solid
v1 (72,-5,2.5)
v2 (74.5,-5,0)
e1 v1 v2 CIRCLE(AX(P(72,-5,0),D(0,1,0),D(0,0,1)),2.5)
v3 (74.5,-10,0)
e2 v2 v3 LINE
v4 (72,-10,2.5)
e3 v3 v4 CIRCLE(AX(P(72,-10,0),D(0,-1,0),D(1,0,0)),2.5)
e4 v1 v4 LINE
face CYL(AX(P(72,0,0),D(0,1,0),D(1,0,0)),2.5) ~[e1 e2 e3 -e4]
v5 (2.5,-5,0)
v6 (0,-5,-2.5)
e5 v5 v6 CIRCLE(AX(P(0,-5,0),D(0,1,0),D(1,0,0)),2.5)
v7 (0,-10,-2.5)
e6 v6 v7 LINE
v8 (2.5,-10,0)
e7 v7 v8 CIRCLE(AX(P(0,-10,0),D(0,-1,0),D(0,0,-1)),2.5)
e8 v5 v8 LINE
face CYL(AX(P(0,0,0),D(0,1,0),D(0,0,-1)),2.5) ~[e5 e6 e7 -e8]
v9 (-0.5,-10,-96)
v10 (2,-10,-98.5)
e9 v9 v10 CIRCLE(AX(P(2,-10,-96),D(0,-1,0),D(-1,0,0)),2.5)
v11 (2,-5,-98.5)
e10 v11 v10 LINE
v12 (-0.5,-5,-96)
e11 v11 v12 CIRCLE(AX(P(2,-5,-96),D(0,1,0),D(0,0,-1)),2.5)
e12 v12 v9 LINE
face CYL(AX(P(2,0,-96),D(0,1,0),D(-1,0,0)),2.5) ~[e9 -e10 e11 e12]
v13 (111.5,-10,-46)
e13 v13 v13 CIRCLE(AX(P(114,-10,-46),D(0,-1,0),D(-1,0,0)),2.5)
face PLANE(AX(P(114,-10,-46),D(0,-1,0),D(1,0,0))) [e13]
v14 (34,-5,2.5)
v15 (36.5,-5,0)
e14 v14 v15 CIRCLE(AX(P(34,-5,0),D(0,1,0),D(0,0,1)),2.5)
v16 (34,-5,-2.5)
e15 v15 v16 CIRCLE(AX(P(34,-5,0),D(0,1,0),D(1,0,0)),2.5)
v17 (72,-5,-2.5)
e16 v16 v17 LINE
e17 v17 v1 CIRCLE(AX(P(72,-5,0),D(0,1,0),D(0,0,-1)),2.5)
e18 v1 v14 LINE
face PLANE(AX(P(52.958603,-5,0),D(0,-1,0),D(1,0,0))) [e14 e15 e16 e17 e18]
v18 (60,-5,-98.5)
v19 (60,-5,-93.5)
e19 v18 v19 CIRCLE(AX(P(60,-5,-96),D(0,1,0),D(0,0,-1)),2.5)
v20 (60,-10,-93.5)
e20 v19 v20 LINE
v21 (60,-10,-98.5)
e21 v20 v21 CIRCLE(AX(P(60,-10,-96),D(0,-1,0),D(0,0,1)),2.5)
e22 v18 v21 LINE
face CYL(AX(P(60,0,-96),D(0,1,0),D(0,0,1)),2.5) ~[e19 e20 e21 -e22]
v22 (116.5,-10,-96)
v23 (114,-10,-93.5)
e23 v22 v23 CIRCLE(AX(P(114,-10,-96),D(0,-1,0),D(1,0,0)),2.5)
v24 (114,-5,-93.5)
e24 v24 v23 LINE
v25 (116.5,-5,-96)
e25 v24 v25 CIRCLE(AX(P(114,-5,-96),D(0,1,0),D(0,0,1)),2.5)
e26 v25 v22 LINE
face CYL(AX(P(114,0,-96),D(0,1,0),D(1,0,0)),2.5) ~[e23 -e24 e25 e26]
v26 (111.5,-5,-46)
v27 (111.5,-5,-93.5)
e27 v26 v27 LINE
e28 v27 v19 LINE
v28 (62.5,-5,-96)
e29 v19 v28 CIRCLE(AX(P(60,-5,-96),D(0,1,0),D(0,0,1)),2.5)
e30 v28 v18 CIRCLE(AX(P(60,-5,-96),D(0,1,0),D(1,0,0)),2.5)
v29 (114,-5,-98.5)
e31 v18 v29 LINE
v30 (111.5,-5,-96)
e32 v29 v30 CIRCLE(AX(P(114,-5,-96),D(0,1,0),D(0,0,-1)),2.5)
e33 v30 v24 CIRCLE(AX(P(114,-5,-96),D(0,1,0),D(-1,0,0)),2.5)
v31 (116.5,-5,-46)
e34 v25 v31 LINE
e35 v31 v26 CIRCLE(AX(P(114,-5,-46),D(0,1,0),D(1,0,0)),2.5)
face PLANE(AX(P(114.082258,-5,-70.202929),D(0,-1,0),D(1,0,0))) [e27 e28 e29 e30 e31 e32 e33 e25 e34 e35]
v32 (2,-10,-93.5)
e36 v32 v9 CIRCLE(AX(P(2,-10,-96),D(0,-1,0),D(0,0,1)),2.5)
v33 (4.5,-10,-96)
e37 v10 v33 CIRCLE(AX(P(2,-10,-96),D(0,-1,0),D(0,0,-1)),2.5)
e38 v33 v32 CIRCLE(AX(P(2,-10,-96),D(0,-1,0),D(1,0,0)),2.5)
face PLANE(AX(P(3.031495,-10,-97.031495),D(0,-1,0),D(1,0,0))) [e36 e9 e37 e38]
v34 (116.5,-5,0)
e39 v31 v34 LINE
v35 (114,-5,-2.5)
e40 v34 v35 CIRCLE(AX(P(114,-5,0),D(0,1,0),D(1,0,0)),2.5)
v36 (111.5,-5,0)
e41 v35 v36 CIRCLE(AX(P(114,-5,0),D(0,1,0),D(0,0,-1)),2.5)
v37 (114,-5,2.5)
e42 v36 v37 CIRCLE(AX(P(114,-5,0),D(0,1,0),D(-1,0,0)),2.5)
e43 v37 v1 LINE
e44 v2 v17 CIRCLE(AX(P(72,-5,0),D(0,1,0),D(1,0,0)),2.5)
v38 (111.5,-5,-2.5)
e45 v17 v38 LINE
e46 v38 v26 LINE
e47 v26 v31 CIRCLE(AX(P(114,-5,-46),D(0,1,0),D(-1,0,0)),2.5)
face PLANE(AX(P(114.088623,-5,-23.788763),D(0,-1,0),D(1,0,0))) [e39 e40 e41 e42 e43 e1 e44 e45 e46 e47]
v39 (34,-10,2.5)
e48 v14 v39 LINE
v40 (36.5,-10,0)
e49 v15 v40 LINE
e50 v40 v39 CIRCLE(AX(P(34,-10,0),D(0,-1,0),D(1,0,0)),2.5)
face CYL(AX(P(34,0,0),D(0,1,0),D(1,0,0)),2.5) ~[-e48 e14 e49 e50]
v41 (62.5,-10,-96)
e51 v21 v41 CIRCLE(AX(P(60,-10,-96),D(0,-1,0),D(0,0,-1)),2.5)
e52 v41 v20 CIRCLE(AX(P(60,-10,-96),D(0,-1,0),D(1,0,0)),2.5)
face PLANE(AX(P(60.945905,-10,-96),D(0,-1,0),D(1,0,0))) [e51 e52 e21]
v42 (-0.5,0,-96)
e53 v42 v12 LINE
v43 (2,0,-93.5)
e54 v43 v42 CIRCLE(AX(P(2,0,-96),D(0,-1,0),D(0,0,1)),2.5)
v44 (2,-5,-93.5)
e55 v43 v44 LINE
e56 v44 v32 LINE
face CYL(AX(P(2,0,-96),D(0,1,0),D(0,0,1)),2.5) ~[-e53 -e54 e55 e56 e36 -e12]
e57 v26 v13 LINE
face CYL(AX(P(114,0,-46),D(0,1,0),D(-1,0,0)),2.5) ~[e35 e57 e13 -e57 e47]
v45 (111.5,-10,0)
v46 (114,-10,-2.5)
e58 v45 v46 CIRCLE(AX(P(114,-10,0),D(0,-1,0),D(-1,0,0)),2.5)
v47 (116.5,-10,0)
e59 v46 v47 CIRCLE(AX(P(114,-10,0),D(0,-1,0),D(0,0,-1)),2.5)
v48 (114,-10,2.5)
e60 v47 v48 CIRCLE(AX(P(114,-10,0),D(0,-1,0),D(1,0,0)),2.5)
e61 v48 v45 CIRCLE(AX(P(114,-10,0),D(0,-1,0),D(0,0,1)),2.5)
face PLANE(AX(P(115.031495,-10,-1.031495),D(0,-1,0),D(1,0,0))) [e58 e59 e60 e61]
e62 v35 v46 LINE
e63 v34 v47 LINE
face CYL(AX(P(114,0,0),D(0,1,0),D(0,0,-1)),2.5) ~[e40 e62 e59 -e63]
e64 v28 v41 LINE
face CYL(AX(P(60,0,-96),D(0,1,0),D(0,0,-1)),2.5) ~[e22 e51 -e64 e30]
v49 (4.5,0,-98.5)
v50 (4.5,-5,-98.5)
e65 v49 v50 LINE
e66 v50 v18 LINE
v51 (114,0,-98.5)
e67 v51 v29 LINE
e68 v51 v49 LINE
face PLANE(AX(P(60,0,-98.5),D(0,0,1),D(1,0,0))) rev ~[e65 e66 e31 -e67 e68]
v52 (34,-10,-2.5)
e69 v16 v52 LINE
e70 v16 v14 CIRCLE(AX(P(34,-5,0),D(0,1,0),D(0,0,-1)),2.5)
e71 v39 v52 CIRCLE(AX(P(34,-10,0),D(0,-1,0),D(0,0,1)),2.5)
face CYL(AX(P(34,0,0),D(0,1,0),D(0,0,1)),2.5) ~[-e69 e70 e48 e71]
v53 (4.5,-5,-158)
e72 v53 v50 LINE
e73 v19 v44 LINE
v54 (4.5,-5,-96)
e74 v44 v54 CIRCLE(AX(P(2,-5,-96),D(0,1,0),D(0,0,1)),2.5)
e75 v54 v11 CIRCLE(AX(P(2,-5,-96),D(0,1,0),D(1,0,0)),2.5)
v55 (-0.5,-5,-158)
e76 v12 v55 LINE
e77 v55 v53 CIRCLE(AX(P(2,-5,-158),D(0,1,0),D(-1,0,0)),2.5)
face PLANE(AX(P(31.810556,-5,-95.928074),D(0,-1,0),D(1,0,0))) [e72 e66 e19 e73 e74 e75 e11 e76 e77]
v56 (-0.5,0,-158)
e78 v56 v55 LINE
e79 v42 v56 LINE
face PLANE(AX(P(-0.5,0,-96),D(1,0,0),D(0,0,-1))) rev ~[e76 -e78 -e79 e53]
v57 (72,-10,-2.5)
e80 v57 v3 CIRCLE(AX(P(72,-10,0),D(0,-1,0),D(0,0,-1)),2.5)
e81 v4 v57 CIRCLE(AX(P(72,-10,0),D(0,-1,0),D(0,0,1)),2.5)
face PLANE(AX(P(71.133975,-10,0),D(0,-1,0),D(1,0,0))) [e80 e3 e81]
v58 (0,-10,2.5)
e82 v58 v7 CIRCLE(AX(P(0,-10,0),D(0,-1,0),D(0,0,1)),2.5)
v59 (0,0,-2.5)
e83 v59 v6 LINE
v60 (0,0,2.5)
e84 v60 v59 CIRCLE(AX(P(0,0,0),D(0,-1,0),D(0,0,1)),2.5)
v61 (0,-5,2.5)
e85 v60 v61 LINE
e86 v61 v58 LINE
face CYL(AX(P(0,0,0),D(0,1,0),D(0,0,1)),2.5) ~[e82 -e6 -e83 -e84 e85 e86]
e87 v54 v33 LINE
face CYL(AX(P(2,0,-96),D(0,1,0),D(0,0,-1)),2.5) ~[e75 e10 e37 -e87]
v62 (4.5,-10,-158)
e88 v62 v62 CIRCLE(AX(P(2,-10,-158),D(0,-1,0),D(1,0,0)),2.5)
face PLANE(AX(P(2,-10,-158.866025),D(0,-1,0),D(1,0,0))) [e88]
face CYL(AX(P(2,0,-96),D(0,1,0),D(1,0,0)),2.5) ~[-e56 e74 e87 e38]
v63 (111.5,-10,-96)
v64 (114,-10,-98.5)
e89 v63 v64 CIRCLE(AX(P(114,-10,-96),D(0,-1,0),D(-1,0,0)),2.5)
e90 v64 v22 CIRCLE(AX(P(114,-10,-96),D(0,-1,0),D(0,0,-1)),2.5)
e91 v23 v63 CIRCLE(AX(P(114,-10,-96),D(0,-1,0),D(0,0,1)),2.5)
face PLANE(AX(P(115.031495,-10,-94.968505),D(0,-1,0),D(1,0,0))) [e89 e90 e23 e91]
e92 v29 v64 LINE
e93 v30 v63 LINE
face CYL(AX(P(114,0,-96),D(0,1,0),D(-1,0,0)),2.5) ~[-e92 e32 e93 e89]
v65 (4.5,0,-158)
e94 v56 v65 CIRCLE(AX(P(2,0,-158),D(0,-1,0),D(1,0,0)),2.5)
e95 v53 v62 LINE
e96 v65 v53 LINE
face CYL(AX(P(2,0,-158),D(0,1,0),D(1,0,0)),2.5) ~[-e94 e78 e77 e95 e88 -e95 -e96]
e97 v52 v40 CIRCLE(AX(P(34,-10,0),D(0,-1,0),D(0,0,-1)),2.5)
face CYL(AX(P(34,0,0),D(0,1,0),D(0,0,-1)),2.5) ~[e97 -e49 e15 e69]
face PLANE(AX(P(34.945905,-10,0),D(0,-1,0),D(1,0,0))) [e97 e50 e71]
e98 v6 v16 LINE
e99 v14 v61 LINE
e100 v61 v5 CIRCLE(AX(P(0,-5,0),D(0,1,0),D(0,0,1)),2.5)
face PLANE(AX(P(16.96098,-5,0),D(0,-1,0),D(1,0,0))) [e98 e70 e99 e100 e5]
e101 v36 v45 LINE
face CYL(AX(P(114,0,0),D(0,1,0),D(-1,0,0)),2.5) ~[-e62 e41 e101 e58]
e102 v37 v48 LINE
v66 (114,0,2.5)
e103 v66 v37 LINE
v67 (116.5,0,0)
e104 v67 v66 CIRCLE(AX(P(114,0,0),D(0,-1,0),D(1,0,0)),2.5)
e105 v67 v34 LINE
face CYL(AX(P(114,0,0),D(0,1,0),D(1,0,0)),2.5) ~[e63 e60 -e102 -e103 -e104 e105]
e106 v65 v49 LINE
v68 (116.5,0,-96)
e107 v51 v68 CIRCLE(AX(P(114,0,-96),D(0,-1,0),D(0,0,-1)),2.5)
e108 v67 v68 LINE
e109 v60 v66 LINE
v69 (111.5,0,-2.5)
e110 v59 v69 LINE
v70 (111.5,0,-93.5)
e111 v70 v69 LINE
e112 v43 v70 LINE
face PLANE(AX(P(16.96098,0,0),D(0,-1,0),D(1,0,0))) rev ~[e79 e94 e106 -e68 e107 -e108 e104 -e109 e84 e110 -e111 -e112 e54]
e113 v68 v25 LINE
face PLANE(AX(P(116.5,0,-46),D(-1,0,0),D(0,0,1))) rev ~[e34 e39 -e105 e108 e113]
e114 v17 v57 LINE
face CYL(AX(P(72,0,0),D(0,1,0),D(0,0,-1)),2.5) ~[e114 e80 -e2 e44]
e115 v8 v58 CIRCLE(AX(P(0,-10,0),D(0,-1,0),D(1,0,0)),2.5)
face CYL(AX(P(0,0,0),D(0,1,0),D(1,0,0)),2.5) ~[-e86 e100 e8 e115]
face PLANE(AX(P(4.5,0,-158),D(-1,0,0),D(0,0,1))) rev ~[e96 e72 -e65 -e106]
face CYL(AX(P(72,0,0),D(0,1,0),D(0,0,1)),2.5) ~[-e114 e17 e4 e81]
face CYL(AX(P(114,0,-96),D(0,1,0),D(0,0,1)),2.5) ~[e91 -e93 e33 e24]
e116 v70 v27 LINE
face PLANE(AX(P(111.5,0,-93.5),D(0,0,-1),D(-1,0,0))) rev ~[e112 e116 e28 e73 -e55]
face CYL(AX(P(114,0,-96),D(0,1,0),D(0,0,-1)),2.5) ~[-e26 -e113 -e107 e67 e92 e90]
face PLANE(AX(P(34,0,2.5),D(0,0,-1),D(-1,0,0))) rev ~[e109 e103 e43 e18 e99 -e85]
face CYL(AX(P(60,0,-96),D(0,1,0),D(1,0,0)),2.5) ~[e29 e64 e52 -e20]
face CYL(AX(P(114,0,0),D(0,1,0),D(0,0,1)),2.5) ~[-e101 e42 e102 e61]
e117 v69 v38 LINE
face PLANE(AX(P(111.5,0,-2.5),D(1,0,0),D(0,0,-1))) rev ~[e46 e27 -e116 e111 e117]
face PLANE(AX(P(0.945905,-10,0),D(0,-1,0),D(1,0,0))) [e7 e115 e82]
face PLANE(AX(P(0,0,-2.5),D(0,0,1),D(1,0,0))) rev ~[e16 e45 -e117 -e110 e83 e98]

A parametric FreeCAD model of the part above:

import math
import FreeCAD as App
import Part
import Sketcher
from FreeCAD import Vector

doc = App.newDocument("Part")
body = doc.addObject("PartDesign::Body", "Body")

# Sketch on XZ plane
sketch1 = doc.addObject("Sketcher::SketchObject", "Sketch")
body.addObject(sketch1)
sketch1.AttachmentSupport = (doc.XZ_Plane, [""])
sketch1.MapMode = "FlatFace"
sketch1.addGeometry(Part.ArcOfCircle(Part.Circle(Vector(0, 0, 0), Vector(0, 0, 1), 2.5), math.radians(-90), math.radians(0)), False)
sketch1.addGeometry(Part.ArcOfCircle(Part.Circle(Vector(0, 0, 0), Vector(0, 0, 1), 2.5), math.radians(0), math.radians(90)), False)
sketch1.addGeometry(Part.ArcOfCircle(Part.Circle(Vector(0, 0, 0), Vector(0, 0, 1), 2.5), math.radians(90), math.radians(270)), False)
sketch1.addConstraint(Sketcher.Constraint("Tangent", 0, 2, 1, 1))
sketch1.addConstraint(Sketcher.Constraint("Tangent", 1, 2, 2, 1))
sketch1.addConstraint(Sketcher.Constraint("Tangent", 2, 2, 0, 1))
sketch1.addConstraint(Sketcher.Constraint("Coincident", 0, 3, -1, 1))
sketch1.addConstraint(Sketcher.Constraint("PointOnObject", 0, 2, -1))
sketch1.addConstraint(Sketcher.Constraint("PointOnObject", 1, 2, -2))
sketch1.addConstraint(Sketcher.Constraint("PointOnObject", 2, 2, -2))
sketch1.addConstraint(Sketcher.Constraint("Radius", 0, 2.5))
pad1 = doc.addObject("PartDesign::Pad", "Pad")
body.addObject(pad1)
pad1.Profile = sketch1
pad1.Length = 10
body2 = doc.addObject("PartDesign::Body", "Body001")

# Sketch on XZ plane
sketch2 = doc.addObject("Sketcher::SketchObject", "Sketch001")
body2.addObject(sketch2)
sketch2.AttachmentSupport = (doc.getObject("XZ_Plane001"), [""])
sketch2.MapMode = "FlatFace"
sketch2.addGeometry(Part.ArcOfCircle(Part.Circle(Vector(34, 0, 0), Vector(0, 0, 1), 2.5), math.radians(0), math.radians(90)), False)
sketch2.addGeometry(Part.ArcOfCircle(Part.Circle(Vector(34, 0, 0), Vector(0, 0, 1), 2.5), math.radians(90), math.radians(270)), False)
sketch2.addGeometry(Part.ArcOfCircle(Part.Circle(Vector(34, 0, 0), Vector(0, 0, 1), 2.5), math.radians(-90), math.radians(0)), False)
sketch2.addConstraint(Sketcher.Constraint("Tangent", 0, 2, 1, 1))
sketch2.addConstraint(Sketcher.Constraint("Tangent", 1, 2, 2, 1))
sketch2.addConstraint(Sketcher.Constraint("Tangent", 2, 2, 0, 1))
sketch2.addConstraint(Sketcher.Constraint("Symmetric", 0, 2, 1, 2, -1))
sketch2.addConstraint(Sketcher.Constraint("PointOnObject", 2, 2, -1))
sketch2.addConstraint(Sketcher.Constraint("Vertical", 2, 3, 0, 2))
sketch2.addConstraint(Sketcher.Constraint("Radius", 0, 2.5))
sketch2.addConstraint(Sketcher.Constraint("DistanceX", -1, 1, 0, 3, 34.0))
pad2 = doc.addObject("PartDesign::Pad", "Pad001")
body2.addObject(pad2)
pad2.Profile = sketch2
pad2.Length = 10
body3 = doc.addObject("PartDesign::Body", "Body002")

# Sketch on XZ plane
sketch3 = doc.addObject("Sketcher::SketchObject", "Sketch002")
body3.addObject(sketch3)
sketch3.AttachmentSupport = (doc.getObject("XZ_Plane002"), [""])
sketch3.MapMode = "FlatFace"
sketch3.addGeometry(Part.ArcOfCircle(Part.Circle(Vector(114, 0, 0), Vector(0, 0, 1), 2.5), math.radians(-90), math.radians(0)), False)
sketch3.addGeometry(Part.ArcOfCircle(Part.Circle(Vector(114, 0, 0), Vector(0, 0, 1), 2.5), math.radians(0), math.radians(90)), False)
sketch3.addGeometry(Part.ArcOfCircle(Part.Circle(Vector(114, 0, 0), Vector(0, 0, 1), 2.5), math.radians(90), math.radians(180)), False)
sketch3.addGeometry(Part.ArcOfCircle(Part.Circle(Vector(114, 0, 0), Vector(0, 0, 1), 2.5), math.radians(180), math.radians(270)), False)
sketch3.addConstraint(Sketcher.Constraint("Tangent", 0, 2, 1, 1))
sketch3.addConstraint(Sketcher.Constraint("Tangent", 1, 2, 2, 1))
sketch3.addConstraint(Sketcher.Constraint("Tangent", 2, 2, 3, 1))
sketch3.addConstraint(Sketcher.Constraint("Tangent", 3, 2, 0, 1))
sketch3.addConstraint(Sketcher.Constraint("Equal", 0, 1))
sketch3.addConstraint(Sketcher.Constraint("Symmetric", 1, 2, 3, 2, -1))
sketch3.addConstraint(Sketcher.Constraint("PointOnObject", 0, 2, -1))
sketch3.addConstraint(Sketcher.Constraint("PointOnObject", 2, 2, -1))
sketch3.addConstraint(Sketcher.Constraint("Vertical", 3, 3, 1, 2))
sketch3.addConstraint(Sketcher.Constraint("Radius", 0, 2.5))
sketch3.addConstraint(Sketcher.Constraint("DistanceX", -1, 1, 0, 3, 114.0))
pad3 = doc.addObject("PartDesign::Pad", "Pad002")
body3.addObject(pad3)
pad3.Profile = sketch3
pad3.Length = 10
body4 = doc.addObject("PartDesign::Body", "Body003")

# Sketch on XZ plane
sketch4 = doc.addObject("Sketcher::SketchObject", "Sketch003")
body4.addObject(sketch4)
sketch4.AttachmentSupport = (doc.getObject("XZ_Plane003"), [""])
sketch4.MapMode = "FlatFace"
sketch4.addGeometry(Part.ArcOfCircle(Part.Circle(Vector(72, 0, 0), Vector(0, 0, 1), 2.5), math.radians(90), math.radians(270)), False)
sketch4.addGeometry(Part.ArcOfCircle(Part.Circle(Vector(72, 0, 0), Vector(0, 0, 1), 2.5), math.radians(-90), math.radians(0)), False)
sketch4.addGeometry(Part.ArcOfCircle(Part.Circle(Vector(72, 0, 0), Vector(0, 0, 1), 2.5), math.radians(0), math.radians(90)), False)
sketch4.addConstraint(Sketcher.Constraint("Tangent", 0, 2, 1, 1))
sketch4.addConstraint(Sketcher.Constraint("Tangent", 1, 2, 2, 1))
sketch4.addConstraint(Sketcher.Constraint("Tangent", 2, 2, 0, 1))
sketch4.addConstraint(Sketcher.Constraint("Symmetric", 0, 2, 2, 2, -1))
sketch4.addConstraint(Sketcher.Constraint("PointOnObject", 1, 2, -1))
sketch4.addConstraint(Sketcher.Constraint("Vertical", 2, 3, 0, 2))
sketch4.addConstraint(Sketcher.Constraint("Radius", 0, 2.5))
sketch4.addConstraint(Sketcher.Constraint("DistanceX", -1, 1, 0, 3, 72.0))
pad4 = doc.addObject("PartDesign::Pad", "Pad003")
body4.addObject(pad4)
pad4.Profile = sketch4
pad4.Length = 10
body5 = doc.addObject("PartDesign::Body", "Body004")

# Sketch on XZ plane
sketch5 = doc.addObject("Sketcher::SketchObject", "Sketch004")
body5.addObject(sketch5)
sketch5.AttachmentSupport = (doc.getObject("XZ_Plane004"), [""])
sketch5.MapMode = "FlatFace"
sketch5.addGeometry(Part.Circle(Vector(114, -46, 0), Vector(0, 0, 1), 2.5), False)
sketch5.addConstraint(Sketcher.Constraint("Diameter", 0, 5.0))
sketch5.addConstraint(Sketcher.Constraint("DistanceX", -1, 1, 0, 3, 114.0))
sketch5.addConstraint(Sketcher.Constraint("DistanceY", 0, 3, -1, 1, 46.0))
pad5 = doc.addObject("PartDesign::Pad", "Pad004")
body5.addObject(pad5)
pad5.Profile = sketch5
pad5.Length = 10
body6 = doc.addObject("PartDesign::Body", "Body005")

# Sketch on XZ plane
sketch6 = doc.addObject("Sketcher::SketchObject", "Sketch005")
body6.addObject(sketch6)
sketch6.AttachmentSupport = (doc.getObject("XZ_Plane005"), [""])
sketch6.MapMode = "FlatFace"
sketch6.addGeometry(Part.ArcOfCircle(Part.Circle(Vector(114, -96, 0), Vector(0, 0, 1), 2.5), math.radians(0), math.radians(90)), False)
sketch6.addGeometry(Part.ArcOfCircle(Part.Circle(Vector(114, -96, 0), Vector(0, 0, 1), 2.5), math.radians(90), math.radians(180)), False)
sketch6.addGeometry(Part.ArcOfCircle(Part.Circle(Vector(114, -96, 0), Vector(0, 0, 1), 2.5), math.radians(180), math.radians(270)), False)
sketch6.addGeometry(Part.ArcOfCircle(Part.Circle(Vector(114, -96, 0), Vector(0, 0, 1), 2.5), math.radians(-90), math.radians(0)), False)
sketch6.addConstraint(Sketcher.Constraint("Tangent", 0, 2, 1, 1))
sketch6.addConstraint(Sketcher.Constraint("Tangent", 1, 2, 2, 1))
sketch6.addConstraint(Sketcher.Constraint("Tangent", 2, 2, 3, 1))
sketch6.addConstraint(Sketcher.Constraint("Tangent", 3, 2, 0, 1))
sketch6.addConstraint(Sketcher.Constraint("Equal", 0, 1))
sketch6.addConstraint(Sketcher.Constraint("Horizontal", 3, 3, 1, 2))
sketch6.addConstraint(Sketcher.Constraint("Horizontal", 1, 2, 3, 2))
sketch6.addConstraint(Sketcher.Constraint("Vertical", 3, 3, 0, 2))
sketch6.addConstraint(Sketcher.Constraint("Vertical", 0, 2, 2, 2))
sketch6.addConstraint(Sketcher.Constraint("Radius", 0, 2.5))
sketch6.addConstraint(Sketcher.Constraint("DistanceX", -1, 1, 0, 3, 114.0))
sketch6.addConstraint(Sketcher.Constraint("DistanceY", 0, 3, -1, 1, 96.0))
pad6 = doc.addObject("PartDesign::Pad", "Pad005")
body6.addObject(pad6)
pad6.Profile = sketch6
pad6.Length = 10
body7 = doc.addObject("PartDesign::Body", "Body006")

# Sketch on XZ plane
sketch7 = doc.addObject("Sketcher::SketchObject", "Sketch006")
body7.addObject(sketch7)
sketch7.AttachmentSupport = (doc.getObject("XZ_Plane006"), [""])
sketch7.MapMode = "FlatFace"
sketch7.addGeometry(Part.ArcOfCircle(Part.Circle(Vector(60, -96, 0), Vector(0, 0, 1), 2.5), math.radians(0), math.radians(90)), False)
sketch7.addGeometry(Part.ArcOfCircle(Part.Circle(Vector(60, -96, 0), Vector(0, 0, 1), 2.5), math.radians(90), math.radians(270)), False)
sketch7.addGeometry(Part.ArcOfCircle(Part.Circle(Vector(60, -96, 0), Vector(0, 0, 1), 2.5), math.radians(-90), math.radians(0)), False)
sketch7.addConstraint(Sketcher.Constraint("Tangent", 0, 2, 1, 1))
sketch7.addConstraint(Sketcher.Constraint("Tangent", 1, 2, 2, 1))
sketch7.addConstraint(Sketcher.Constraint("Tangent", 2, 2, 0, 1))
sketch7.addConstraint(Sketcher.Constraint("Horizontal", 1, 3, 2, 2))
sketch7.addConstraint(Sketcher.Constraint("Vertical", 2, 3, 0, 2))
sketch7.addConstraint(Sketcher.Constraint("Vertical", 0, 2, 1, 2))
sketch7.addConstraint(Sketcher.Constraint("Radius", 0, 2.5))
sketch7.addConstraint(Sketcher.Constraint("DistanceX", -1, 1, 0, 3, 60.0))
sketch7.addConstraint(Sketcher.Constraint("DistanceY", 0, 3, -1, 1, 96.0))
pad7 = doc.addObject("PartDesign::Pad", "Pad006")
body7.addObject(pad7)
pad7.Profile = sketch7
pad7.Length = 10
body8 = doc.addObject("PartDesign::Body", "Body007")

# Sketch on XZ plane
sketch8 = doc.addObject("Sketcher::SketchObject", "Sketch007")
body8.addObject(sketch8)
sketch8.AttachmentSupport = (doc.getObject("XZ_Plane007"), [""])
sketch8.MapMode = "FlatFace"
sketch8.addGeometry(Part.ArcOfCircle(Part.Circle(Vector(2, -96, 0), Vector(0, 0, 1), 2.5), math.radians(-90), math.radians(0)), False)
sketch8.addGeometry(Part.ArcOfCircle(Part.Circle(Vector(2, -96, 0), Vector(0, 0, 1), 2.5), math.radians(0), math.radians(90)), False)
sketch8.addGeometry(Part.ArcOfCircle(Part.Circle(Vector(2, -96, 0), Vector(0, 0, 1), 2.5), math.radians(90), math.radians(180)), False)
sketch8.addGeometry(Part.ArcOfCircle(Part.Circle(Vector(2, -96, 0), Vector(0, 0, 1), 2.5), math.radians(180), math.radians(270)), False)
sketch8.addConstraint(Sketcher.Constraint("Tangent", 0, 2, 1, 1))
sketch8.addConstraint(Sketcher.Constraint("Tangent", 1, 2, 2, 1))
sketch8.addConstraint(Sketcher.Constraint("Tangent", 2, 2, 3, 1))
sketch8.addConstraint(Sketcher.Constraint("Tangent", 3, 2, 0, 1))
sketch8.addConstraint(Sketcher.Constraint("Equal", 0, 1))
sketch8.addConstraint(Sketcher.Constraint("Horizontal", 3, 3, 0, 2))
sketch8.addConstraint(Sketcher.Constraint("Horizontal", 0, 2, 2, 2))
sketch8.addConstraint(Sketcher.Constraint("Vertical", 3, 3, 1, 2))
sketch8.addConstraint(Sketcher.Constraint("Vertical", 1, 2, 3, 2))
sketch8.addConstraint(Sketcher.Constraint("Radius", 0, 2.5))
sketch8.addConstraint(Sketcher.Constraint("DistanceX", -1, 1, 0, 3, 2.0))
sketch8.addConstraint(Sketcher.Constraint("DistanceY", 0, 3, -1, 1, 96.0))
pad8 = doc.addObject("PartDesign::Pad", "Pad007")
body8.addObject(pad8)
pad8.Profile = sketch8
pad8.Length = 10
body9 = doc.addObject("PartDesign::Body", "Body008")

# Sketch on XZ plane
sketch9 = doc.addObject("Sketcher::SketchObject", "Sketch008")
body9.addObject(sketch9)
sketch9.AttachmentSupport = (doc.getObject("XZ_Plane008"), [""])
sketch9.MapMode = "FlatFace"
sketch9.addGeometry(Part.Circle(Vector(2, -158, 0), Vector(0, 0, 1), 2.5), False)
sketch9.addConstraint(Sketcher.Constraint("Diameter", 0, 5.0))
sketch9.addConstraint(Sketcher.Constraint("DistanceX", -1, 1, 0, 3, 2.0))
sketch9.addConstraint(Sketcher.Constraint("DistanceY", 0, 3, -1, 1, 158.0))
pad9 = doc.addObject("PartDesign::Pad", "Pad008")
body9.addObject(pad9)
pad9.Profile = sketch9
pad9.Length = 10
body.AllowCompound = True
doc.recompute()

boolean = doc.addObject("PartDesign::Boolean", "Boolean")
body.addObject(boolean)
boolean.Type = "Fuse"
boolean.addObjects([body2])
doc.recompute()

boolean2 = doc.addObject("PartDesign::Boolean", "Boolean001")
body.addObject(boolean2)
boolean2.Type = "Fuse"
boolean2.addObjects([body3])
doc.recompute()

boolean3 = doc.addObject("PartDesign::Boolean", "Boolean002")
body.addObject(boolean3)
boolean3.Type = "Fuse"
boolean3.addObjects([body4])
doc.recompute()

boolean4 = doc.addObject("PartDesign::Boolean", "Boolean003")
body.addObject(boolean4)
boolean4.Type = "Fuse"
boolean4.addObjects([body5])
doc.recompute()

boolean5 = doc.addObject("PartDesign::Boolean", "Boolean004")
body.addObject(boolean5)
boolean5.Type = "Fuse"
boolean5.addObjects([body6])
doc.recompute()

boolean6 = doc.addObject("PartDesign::Boolean", "Boolean005")
body.addObject(boolean6)
boolean6.Type = "Fuse"
boolean6.addObjects([body7])
doc.recompute()

boolean7 = doc.addObject("PartDesign::Boolean", "Boolean006")
body.addObject(boolean7)
boolean7.Type = "Fuse"
boolean7.addObjects([body8])
doc.recompute()

boolean8 = doc.addObject("PartDesign::Boolean", "Boolean007")
body.addObject(boolean8)
boolean8.Type = "Fuse"
boolean8.addObjects([body9])

# Sketch on XZ plane
sketch10 = doc.addObject("Sketcher::SketchObject", "Sketch009")
body.addObject(sketch10)
sketch10.AttachmentSupport = (doc.XZ_Plane, [""])
sketch10.MapMode = "FlatFace"
sketch10.addGeometry(Part.ArcOfCircle(Part.Circle(Vector(0, 0, 0), Vector(0, 0, 1), 2.5), math.radians(0), math.radians(90)), False)
sketch10.addGeometry(Part.ArcOfCircle(Part.Circle(Vector(0, 0, 0), Vector(0, 0, 1), 2.5), math.radians(-90), math.radians(0)), False)
sketch10.addGeometry(Part.LineSegment(Vector(0, -2.5, 0), Vector(34, -2.5, 0)), False)
sketch10.addGeometry(Part.ArcOfCircle(Part.Circle(Vector(34, 0, 0), Vector(0, 0, 1), 2.5), math.radians(90), math.radians(270)), False)
sketch10.addGeometry(Part.LineSegment(Vector(34, 2.5, 0), Vector(0, 2.5, 0)), False)
sketch10.addGeometry(Part.LineSegment(Vector(72, 2.5, 0), Vector(34, 2.5, 0)), False)
sketch10.addGeometry(Part.ArcOfCircle(Part.Circle(Vector(34, 0, 0), Vector(0, 0, 1), 2.5), math.radians(0), math.radians(90)), False)
sketch10.addGeometry(Part.ArcOfCircle(Part.Circle(Vector(34, 0, 0), Vector(0, 0, 1), 2.5), math.radians(-90), math.radians(0)), False)
sketch10.addGeometry(Part.LineSegment(Vector(34, -2.5, 0), Vector(72, -2.5, 0)), False)
sketch10.addGeometry(Part.ArcOfCircle(Part.Circle(Vector(72, 0, 0), Vector(0, 0, 1), 2.5), math.radians(90), math.radians(270)), False)
sketch10.addGeometry(Part.LineSegment(Vector(111.5, -2.5, 0), Vector(111.5, -46, 0)), False)
sketch10.addGeometry(Part.ArcOfCircle(Part.Circle(Vector(114, -46, 0), Vector(0, 0, 1), 2.5), math.radians(0), math.radians(180)), False)
sketch10.addGeometry(Part.LineSegment(Vector(116.5, -46, 0), Vector(116.5, 0, 0)), False)
sketch10.addGeometry(Part.ArcOfCircle(Part.Circle(Vector(114, 0, 0), Vector(0, 0, 1), 2.5), math.radians(-90), math.radians(0)), False)
sketch10.addGeometry(Part.ArcOfCircle(Part.Circle(Vector(114, 0, 0), Vector(0, 0, 1), 2.5), math.radians(180), math.radians(270)), False)
sketch10.addGeometry(Part.ArcOfCircle(Part.Circle(Vector(114, 0, 0), Vector(0, 0, 1), 2.5), math.radians(90), math.radians(180)), False)
sketch10.addGeometry(Part.LineSegment(Vector(114, 2.5, 0), Vector(72, 2.5, 0)), False)
sketch10.addGeometry(Part.ArcOfCircle(Part.Circle(Vector(72, 0, 0), Vector(0, 0, 1), 2.5), math.radians(0), math.radians(90)), False)
sketch10.addGeometry(Part.ArcOfCircle(Part.Circle(Vector(72, 0, 0), Vector(0, 0, 1), 2.5), math.radians(-90), math.radians(0)), False)
sketch10.addGeometry(Part.LineSegment(Vector(72, -2.5, 0), Vector(111.5, -2.5, 0)), False)
sketch10.addGeometry(Part.ArcOfCircle(Part.Circle(Vector(114, -46, 0), Vector(0, 0, 1), 2.5), math.radians(180), math.radians(360)), False)
sketch10.addGeometry(Part.LineSegment(Vector(111.5, -46, 0), Vector(111.5, -93.5, 0)), False)
sketch10.addGeometry(Part.LineSegment(Vector(111.5, -93.5, 0), Vector(60, -93.5, 0)), False)
sketch10.addGeometry(Part.ArcOfCircle(Part.Circle(Vector(60, -96, 0), Vector(0, 0, 1), 2.5), math.radians(0), math.radians(90)), False)
sketch10.addGeometry(Part.ArcOfCircle(Part.Circle(Vector(60, -96, 0), Vector(0, 0, 1), 2.5), math.radians(-90), math.radians(0)), False)
sketch10.addGeometry(Part.LineSegment(Vector(60, -98.5, 0), Vector(114, -98.5, 0)), False)
sketch10.addGeometry(Part.ArcOfCircle(Part.Circle(Vector(114, -96, 0), Vector(0, 0, 1), 2.5), math.radians(180), math.radians(270)), False)
sketch10.addGeometry(Part.ArcOfCircle(Part.Circle(Vector(114, -96, 0), Vector(0, 0, 1), 2.5), math.radians(90), math.radians(180)), False)
sketch10.addGeometry(Part.ArcOfCircle(Part.Circle(Vector(114, -96, 0), Vector(0, 0, 1), 2.5), math.radians(0), math.radians(90)), False)
sketch10.addGeometry(Part.LineSegment(Vector(116.5, -96, 0), Vector(116.5, -46, 0)), False)
sketch10.addGeometry(Part.ArcOfCircle(Part.Circle(Vector(60, -96, 0), Vector(0, 0, 1), 2.5), math.radians(90), math.radians(270)), False)
sketch10.addGeometry(Part.LineSegment(Vector(60, -93.5, 0), Vector(2, -93.5, 0)), False)
sketch10.addGeometry(Part.ArcOfCircle(Part.Circle(Vector(2, -96, 0), Vector(0, 0, 1), 2.5), math.radians(0), math.radians(90)), False)
sketch10.addGeometry(Part.ArcOfCircle(Part.Circle(Vector(2, -96, 0), Vector(0, 0, 1), 2.5), math.radians(-90), math.radians(0)), False)
sketch10.addGeometry(Part.ArcOfCircle(Part.Circle(Vector(2, -96, 0), Vector(0, 0, 1), 2.5), math.radians(180), math.radians(270)), False)
sketch10.addGeometry(Part.LineSegment(Vector(-0.5, -96, 0), Vector(-0.5, -158, 0)), False)
sketch10.addGeometry(Part.ArcOfCircle(Part.Circle(Vector(2, -158, 0), Vector(0, 0, 1), 2.5), math.radians(0), math.radians(180)), False)
sketch10.addGeometry(Part.LineSegment(Vector(4.5, -158, 0), Vector(4.5, -98.5, 0)), False)
sketch10.addGeometry(Part.LineSegment(Vector(4.5, -98.5, 0), Vector(60, -98.5, 0)), False)
sketch10.addConstraint(Sketcher.Constraint("Tangent", 0, 1, 1, 2))
sketch10.addConstraint(Sketcher.Constraint("Tangent", 1, 1, 2, 1))
sketch10.addConstraint(Sketcher.Constraint("Tangent", 2, 2, 3, 2))
sketch10.addConstraint(Sketcher.Constraint("Tangent", 3, 1, 4, 1))
sketch10.addConstraint(Sketcher.Constraint("Tangent", 4, 2, 0, 2))
sketch10.addConstraint(Sketcher.Constraint("Tangent", 5, 2, 6, 2))
sketch10.addConstraint(Sketcher.Constraint("Tangent", 6, 1, 7, 2))
sketch10.addConstraint(Sketcher.Constraint("Tangent", 7, 1, 8, 1))
sketch10.addConstraint(Sketcher.Constraint("Tangent", 8, 2, 9, 2))
sketch10.addConstraint(Sketcher.Constraint("Tangent", 9, 1, 5, 1))
sketch10.addConstraint(Sketcher.Constraint("Tangent", 10, 2, 11, 2))
sketch10.addConstraint(Sketcher.Constraint("Tangent", 11, 1, 12, 1))
sketch10.addConstraint(Sketcher.Constraint("Tangent", 12, 2, 13, 2))
sketch10.addConstraint(Sketcher.Constraint("Tangent", 13, 1, 14, 2))
sketch10.addConstraint(Sketcher.Constraint("Tangent", 14, 1, 15, 2))
sketch10.addConstraint(Sketcher.Constraint("Tangent", 15, 1, 16, 1))
sketch10.addConstraint(Sketcher.Constraint("Tangent", 16, 2, 17, 2))
sketch10.addConstraint(Sketcher.Constraint("Tangent", 17, 1, 18, 2))
sketch10.addConstraint(Sketcher.Constraint("Tangent", 18, 1, 19, 1))
sketch10.addConstraint(Sketcher.Constraint("Coincident", 19, 2, 10, 1))
sketch10.addConstraint(Sketcher.Constraint("Tangent", 20, 1, 21, 1))
sketch10.addConstraint(Sketcher.Constraint("Coincident", 21, 2, 22, 1))
sketch10.addConstraint(Sketcher.Constraint("Tangent", 22, 2, 23, 2))
sketch10.addConstraint(Sketcher.Constraint("Tangent", 23, 1, 24, 2))
sketch10.addConstraint(Sketcher.Constraint("Tangent", 24, 1, 25, 1))
sketch10.addConstraint(Sketcher.Constraint("Tangent", 25, 2, 26, 2))
sketch10.addConstraint(Sketcher.Constraint("Tangent", 26, 1, 27, 2))
sketch10.addConstraint(Sketcher.Constraint("Tangent", 27, 1, 28, 2))
sketch10.addConstraint(Sketcher.Constraint("Tangent", 28, 1, 29, 1))
sketch10.addConstraint(Sketcher.Constraint("Tangent", 29, 2, 20, 2))
sketch10.addConstraint(Sketcher.Constraint("Tangent", 30, 1, 31, 1))
sketch10.addConstraint(Sketcher.Constraint("Tangent", 31, 2, 32, 2))
sketch10.addConstraint(Sketcher.Constraint("Tangent", 32, 1, 33, 2))
sketch10.addConstraint(Sketcher.Constraint("Tangent", 33, 1, 34, 2))
sketch10.addConstraint(Sketcher.Constraint("Tangent", 34, 1, 35, 1))
sketch10.addConstraint(Sketcher.Constraint("Tangent", 35, 2, 36, 2))
sketch10.addConstraint(Sketcher.Constraint("Tangent", 36, 1, 37, 1))
sketch10.addConstraint(Sketcher.Constraint("Coincident", 37, 2, 38, 1))
sketch10.addConstraint(Sketcher.Constraint("Tangent", 38, 2, 30, 2))
sketch10.addConstraint(Sketcher.Constraint("Horizontal", 2))
sketch10.addConstraint(Sketcher.Constraint("Horizontal", 4))
sketch10.addConstraint(Sketcher.Constraint("Horizontal", 5))
sketch10.addConstraint(Sketcher.Constraint("Horizontal", 8))
sketch10.addConstraint(Sketcher.Constraint("Vertical", 10))
sketch10.addConstraint(Sketcher.Constraint("Vertical", 12))
sketch10.addConstraint(Sketcher.Constraint("Horizontal", 16))
sketch10.addConstraint(Sketcher.Constraint("Horizontal", 19))
sketch10.addConstraint(Sketcher.Constraint("Vertical", 21))
sketch10.addConstraint(Sketcher.Constraint("Horizontal", 22))
sketch10.addConstraint(Sketcher.Constraint("Horizontal", 25))
sketch10.addConstraint(Sketcher.Constraint("Vertical", 29))
sketch10.addConstraint(Sketcher.Constraint("Horizontal", 31))
sketch10.addConstraint(Sketcher.Constraint("Vertical", 35))
sketch10.addConstraint(Sketcher.Constraint("Vertical", 37))
sketch10.addConstraint(Sketcher.Constraint("Horizontal", 38))
sketch10.addConstraint(Sketcher.Constraint("Coincident", 0, 3, -1, 1))
sketch10.addConstraint(Sketcher.Constraint("Coincident", 6, 3, 3, 3))
sketch10.addConstraint(Sketcher.Constraint("Coincident", 15, 3, 13, 3))
sketch10.addConstraint(Sketcher.Constraint("Coincident", 17, 3, 9, 3))
sketch10.addConstraint(Sketcher.Constraint("Coincident", 20, 3, 11, 3))
sketch10.addConstraint(Sketcher.Constraint("Coincident", 28, 3, 26, 3))
sketch10.addConstraint(Sketcher.Constraint("Coincident", 30, 3, 23, 3))
sketch10.addConstraint(Sketcher.Constraint("Coincident", 34, 3, 32, 3))
sketch10.addConstraint(Sketcher.Constraint("Coincident", 7, 1, 2, 2))
sketch10.addConstraint(Sketcher.Constraint("Coincident", 18, 1, 8, 2))
sketch10.addConstraint(Sketcher.Constraint("Coincident", 38, 2, 24, 1))
sketch10.addConstraint(Sketcher.Constraint("Equal", 0, 1))
sketch10.addConstraint(Sketcher.Constraint("Equal", 9, 11))
sketch10.addConstraint(Sketcher.Constraint("Equal", 11, 13))
sketch10.addConstraint(Sketcher.Constraint("Equal", 18, 20))
sketch10.addConstraint(Sketcher.Constraint("Equal", 20, 23))
sketch10.addConstraint(Sketcher.Constraint("Equal", 24, 26))
sketch10.addConstraint(Sketcher.Constraint("Equal", 30, 32))
sketch10.addConstraint(Sketcher.Constraint("Equal", 34, 36))
sketch10.addConstraint(Sketcher.Constraint("PointOnObject", 0, 1, -1))
sketch10.addConstraint(Sketcher.Constraint("PointOnObject", 6, 1, -1))
sketch10.addConstraint(Sketcher.Constraint("PointOnObject", 14, 1, -1))
sketch10.addConstraint(Sketcher.Constraint("PointOnObject", 17, 1, -1))
sketch10.addConstraint(Sketcher.Constraint("Horizontal", 34, 3, 23, 1))
sketch10.addConstraint(Sketcher.Constraint("Horizontal", 23, 1, 26, 1))
sketch10.addConstraint(Sketcher.Constraint("Horizontal", 28, 1, 32, 1))
sketch10.addConstraint(Sketcher.Constraint("Vertical", 28, 3, 13, 1))
sketch10.addConstraint(Sketcher.Constraint("Vertical", 25, 2, 27, 1))
sketch10.addConstraint(Sketcher.Constraint("Vertical", 31, 2, 33, 1))
sketch10.addConstraint(Sketcher.Constraint("Radius", 0, 2.5))
sketch10.addConstraint(Sketcher.Constraint("DistanceX", 2, 1, 2, 2, 34.0))
sketch10.addConstraint(Sketcher.Constraint("DistanceX", 5, 2, 5, 1, 38.0))
sketch10.addConstraint(Sketcher.Constraint("DistanceX", 16, 2, 16, 1, 42.0))
sketch10.addConstraint(Sketcher.Constraint("DistanceX", 25, 1, 25, 2, 54.0))
sketch10.addConstraint(Sketcher.Constraint("DistanceX", 31, 2, 31, 1, 58.0))
sketch10.addConstraint(Sketcher.Constraint("DistanceY", 12, 1, 12, 2, 46.0))
sketch10.addConstraint(Sketcher.Constraint("DistanceY", 29, 1, 29, 2, 50.0))
sketch10.addConstraint(Sketcher.Constraint("DistanceY", 35, 2, 35, 1, 62.0))
pad10 = doc.addObject("PartDesign::Pad", "Pad009")
body.addObject(pad10)
pad10.Profile = sketch10
pad10.Length = 5

doc.recompute()
